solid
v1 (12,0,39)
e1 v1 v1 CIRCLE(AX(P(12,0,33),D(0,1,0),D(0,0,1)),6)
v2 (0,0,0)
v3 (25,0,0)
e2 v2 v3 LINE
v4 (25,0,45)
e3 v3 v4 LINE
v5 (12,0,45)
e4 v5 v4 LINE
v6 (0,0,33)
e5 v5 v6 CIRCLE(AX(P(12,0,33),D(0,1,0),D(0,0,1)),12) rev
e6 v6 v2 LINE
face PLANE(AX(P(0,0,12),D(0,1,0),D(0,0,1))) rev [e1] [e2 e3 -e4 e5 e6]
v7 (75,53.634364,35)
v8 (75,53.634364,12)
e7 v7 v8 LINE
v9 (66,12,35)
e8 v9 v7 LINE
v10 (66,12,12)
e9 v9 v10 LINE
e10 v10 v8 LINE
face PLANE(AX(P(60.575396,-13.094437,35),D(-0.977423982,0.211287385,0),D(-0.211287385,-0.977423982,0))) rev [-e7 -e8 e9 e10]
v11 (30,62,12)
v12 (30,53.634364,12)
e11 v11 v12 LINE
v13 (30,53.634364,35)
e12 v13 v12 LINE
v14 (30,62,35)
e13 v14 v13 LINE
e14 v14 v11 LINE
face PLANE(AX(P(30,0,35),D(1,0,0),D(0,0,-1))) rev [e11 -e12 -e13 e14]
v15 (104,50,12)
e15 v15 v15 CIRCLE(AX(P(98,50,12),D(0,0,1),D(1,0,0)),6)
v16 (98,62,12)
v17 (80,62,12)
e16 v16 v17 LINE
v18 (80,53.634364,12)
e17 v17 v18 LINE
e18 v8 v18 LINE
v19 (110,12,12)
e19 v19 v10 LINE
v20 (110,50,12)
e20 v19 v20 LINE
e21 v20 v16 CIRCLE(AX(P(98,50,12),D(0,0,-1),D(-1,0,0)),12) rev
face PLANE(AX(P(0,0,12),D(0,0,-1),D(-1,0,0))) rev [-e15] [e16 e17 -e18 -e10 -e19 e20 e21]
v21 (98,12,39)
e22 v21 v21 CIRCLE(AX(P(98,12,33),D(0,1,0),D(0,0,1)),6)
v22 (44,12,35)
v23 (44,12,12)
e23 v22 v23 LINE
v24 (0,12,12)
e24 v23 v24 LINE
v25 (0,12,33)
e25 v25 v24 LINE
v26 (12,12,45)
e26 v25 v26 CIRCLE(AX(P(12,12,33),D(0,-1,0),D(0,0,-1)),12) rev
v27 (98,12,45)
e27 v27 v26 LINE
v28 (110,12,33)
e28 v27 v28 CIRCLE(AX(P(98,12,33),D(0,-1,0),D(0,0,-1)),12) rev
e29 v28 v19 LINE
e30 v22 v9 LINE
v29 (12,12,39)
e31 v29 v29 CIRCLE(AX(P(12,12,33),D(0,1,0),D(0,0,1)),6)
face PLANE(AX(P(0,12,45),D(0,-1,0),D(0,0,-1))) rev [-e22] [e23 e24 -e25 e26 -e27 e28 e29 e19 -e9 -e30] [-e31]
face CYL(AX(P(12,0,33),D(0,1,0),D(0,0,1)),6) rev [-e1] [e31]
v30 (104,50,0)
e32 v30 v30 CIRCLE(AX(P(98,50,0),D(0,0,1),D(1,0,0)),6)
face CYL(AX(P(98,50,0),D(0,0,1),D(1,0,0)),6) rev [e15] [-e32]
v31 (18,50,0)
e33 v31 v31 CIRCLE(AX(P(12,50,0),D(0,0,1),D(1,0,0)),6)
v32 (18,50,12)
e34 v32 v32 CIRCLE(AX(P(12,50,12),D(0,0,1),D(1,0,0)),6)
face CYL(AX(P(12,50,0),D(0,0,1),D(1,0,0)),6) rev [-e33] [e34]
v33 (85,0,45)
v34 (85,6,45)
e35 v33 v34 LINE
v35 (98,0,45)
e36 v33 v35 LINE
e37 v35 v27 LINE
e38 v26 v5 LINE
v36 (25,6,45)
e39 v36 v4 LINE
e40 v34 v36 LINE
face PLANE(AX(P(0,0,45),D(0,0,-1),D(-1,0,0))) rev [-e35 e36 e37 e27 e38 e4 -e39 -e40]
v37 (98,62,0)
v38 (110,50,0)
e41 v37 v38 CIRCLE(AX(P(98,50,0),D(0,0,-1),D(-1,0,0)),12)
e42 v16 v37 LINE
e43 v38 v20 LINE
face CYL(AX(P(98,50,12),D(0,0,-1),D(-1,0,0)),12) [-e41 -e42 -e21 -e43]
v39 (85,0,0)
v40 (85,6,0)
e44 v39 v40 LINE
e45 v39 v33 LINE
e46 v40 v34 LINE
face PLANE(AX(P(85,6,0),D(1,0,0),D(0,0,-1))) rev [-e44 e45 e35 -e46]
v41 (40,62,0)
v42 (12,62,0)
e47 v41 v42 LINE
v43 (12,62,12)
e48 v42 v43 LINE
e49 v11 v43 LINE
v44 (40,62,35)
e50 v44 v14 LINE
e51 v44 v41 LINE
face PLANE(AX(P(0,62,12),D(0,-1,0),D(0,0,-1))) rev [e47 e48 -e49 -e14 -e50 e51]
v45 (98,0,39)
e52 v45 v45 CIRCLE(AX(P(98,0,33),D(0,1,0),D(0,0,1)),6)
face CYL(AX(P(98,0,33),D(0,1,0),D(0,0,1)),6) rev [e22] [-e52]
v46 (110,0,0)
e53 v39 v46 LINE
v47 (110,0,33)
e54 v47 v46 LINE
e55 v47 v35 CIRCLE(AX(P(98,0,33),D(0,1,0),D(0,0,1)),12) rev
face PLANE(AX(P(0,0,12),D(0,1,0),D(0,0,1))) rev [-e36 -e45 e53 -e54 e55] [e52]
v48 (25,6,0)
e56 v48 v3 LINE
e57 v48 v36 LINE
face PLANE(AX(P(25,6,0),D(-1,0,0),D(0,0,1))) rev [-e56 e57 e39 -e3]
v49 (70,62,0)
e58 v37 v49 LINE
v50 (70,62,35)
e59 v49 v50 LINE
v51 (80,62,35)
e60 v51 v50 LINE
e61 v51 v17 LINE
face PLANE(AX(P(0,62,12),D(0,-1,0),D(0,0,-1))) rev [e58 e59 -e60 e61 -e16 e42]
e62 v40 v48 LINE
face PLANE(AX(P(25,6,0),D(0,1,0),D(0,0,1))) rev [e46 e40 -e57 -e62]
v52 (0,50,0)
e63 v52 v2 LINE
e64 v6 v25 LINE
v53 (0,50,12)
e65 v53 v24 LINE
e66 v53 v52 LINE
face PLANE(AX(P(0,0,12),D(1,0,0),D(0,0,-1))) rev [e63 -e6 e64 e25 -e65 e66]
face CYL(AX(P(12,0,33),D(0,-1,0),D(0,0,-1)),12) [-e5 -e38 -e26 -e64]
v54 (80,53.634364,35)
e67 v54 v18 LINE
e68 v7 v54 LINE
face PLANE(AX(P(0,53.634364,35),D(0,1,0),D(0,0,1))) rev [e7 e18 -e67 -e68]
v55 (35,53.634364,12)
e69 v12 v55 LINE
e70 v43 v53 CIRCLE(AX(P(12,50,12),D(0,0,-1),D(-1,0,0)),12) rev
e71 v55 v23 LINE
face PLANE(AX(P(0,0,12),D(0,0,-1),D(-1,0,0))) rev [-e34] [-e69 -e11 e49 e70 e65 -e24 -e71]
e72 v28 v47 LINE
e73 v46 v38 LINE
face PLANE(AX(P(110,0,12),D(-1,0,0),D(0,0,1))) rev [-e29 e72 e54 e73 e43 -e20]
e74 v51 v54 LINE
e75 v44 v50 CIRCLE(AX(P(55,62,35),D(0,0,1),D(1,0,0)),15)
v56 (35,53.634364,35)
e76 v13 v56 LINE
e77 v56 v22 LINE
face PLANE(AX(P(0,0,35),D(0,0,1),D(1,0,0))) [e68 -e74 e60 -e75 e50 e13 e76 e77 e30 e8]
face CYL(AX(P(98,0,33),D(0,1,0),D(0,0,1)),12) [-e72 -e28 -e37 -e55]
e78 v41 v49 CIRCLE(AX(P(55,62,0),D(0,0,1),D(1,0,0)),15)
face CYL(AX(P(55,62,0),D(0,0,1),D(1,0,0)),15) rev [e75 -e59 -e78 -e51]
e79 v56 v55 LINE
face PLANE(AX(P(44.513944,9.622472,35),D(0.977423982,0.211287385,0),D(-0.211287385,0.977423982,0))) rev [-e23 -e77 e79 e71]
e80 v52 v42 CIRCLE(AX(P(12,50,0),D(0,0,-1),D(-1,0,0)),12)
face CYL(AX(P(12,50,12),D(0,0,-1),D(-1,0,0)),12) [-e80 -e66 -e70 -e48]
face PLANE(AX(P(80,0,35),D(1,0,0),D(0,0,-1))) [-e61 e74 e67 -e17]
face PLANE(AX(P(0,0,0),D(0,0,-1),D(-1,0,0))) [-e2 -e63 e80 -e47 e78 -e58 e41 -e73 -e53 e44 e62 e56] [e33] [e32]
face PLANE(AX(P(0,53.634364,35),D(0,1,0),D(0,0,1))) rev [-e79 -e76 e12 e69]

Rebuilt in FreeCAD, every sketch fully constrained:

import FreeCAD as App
import Part
import Sketcher
from FreeCAD import Vector


def edges_at(feature, points):
    """Names of the edges that pass closest to the given points."""
    edges = feature.Shape.Edges
    near = lambda p: min(range(len(edges)), key=lambda i: edges[i].distToShape(Part.Vertex(*p))[0])
    return sorted({f"Edge{near(p) + 1}" for p in points})

doc = App.newDocument("Part")
body = doc.addObject("PartDesign::Body", "Body")

# Sketch on XY plane
sketch1 = body.newObject("Sketcher::SketchObject", "Sketch")
sketch1.AttachmentSupport = (doc.getObject("XY_Plane"), [""])
sketch1.MapMode = "FlatFace"
sketch1.addGeometry([
    Part.LineSegment(Vector(0, 62, 0), Vector(0, 0, 0)),
    Part.LineSegment(Vector(0, 0, 0), Vector(110, 0, 0)),
    Part.LineSegment(Vector(110, 0, 0), Vector(110, 62, 0)),
    Part.LineSegment(Vector(110, 62, 0), Vector(0, 62, 0)),
], False)
sketch1.addConstraint([
    Sketcher.Constraint("Coincident", 0, 2, 1, 1),
    Sketcher.Constraint("Coincident", 1, 2, 2, 1),
    Sketcher.Constraint("Coincident", 2, 2, 3, 1),
    Sketcher.Constraint("Coincident", 3, 2, 0, 1),
    Sketcher.Constraint("Vertical", 0),
    Sketcher.Constraint("Horizontal", 1),
    Sketcher.Constraint("Vertical", 2),
    Sketcher.Constraint("Horizontal", 3),
    Sketcher.Constraint("Coincident", 0, 2, -1, 1),
    Sketcher.Constraint("DistanceX", 1, 1, 1, 2, 110.0),
    Sketcher.Constraint("DistanceY", 0, 2, 0, 1, 62.0),
])
pad1 = body.newObject("PartDesign::Pad", "Pad")
pad1.Profile = sketch1
pad1.Length = 12

# Sketch on XY plane
sketch2 = body.newObject("Sketcher::SketchObject", "Sketch001")
sketch2.AttachmentSupport = (doc.getObject("XY_Plane"), [""])
sketch2.MapMode = "FlatFace"
sketch2.AttachmentOffset = App.Placement(Vector(0, 0, 12), App.Rotation())
sketch2.addGeometry([
    Part.LineSegment(Vector(0, 12, 0), Vector(0, 0, 0)),
    Part.LineSegment(Vector(0, 0, 0), Vector(110, 0, 0)),
    Part.LineSegment(Vector(110, 0, 0), Vector(110, 12, 0)),
    Part.LineSegment(Vector(110, 12, 0), Vector(0, 12, 0)),
], False)
sketch2.addConstraint([
    Sketcher.Constraint("Coincident", 0, 2, 1, 1),
    Sketcher.Constraint("Coincident", 1, 2, 2, 1),
    Sketcher.Constraint("Coincident", 2, 2, 3, 1),
    Sketcher.Constraint("Coincident", 3, 2, 0, 1),
    Sketcher.Constraint("Vertical", 0),
    Sketcher.Constraint("Horizontal", 1),
    Sketcher.Constraint("Vertical", 2),
    Sketcher.Constraint("Horizontal", 3),
    Sketcher.Constraint("Coincident", 0, 2, -1, 1),
    Sketcher.Constraint("DistanceX", 1, 1, 1, 2, 110.0),
    Sketcher.Constraint("DistanceY", 0, 2, 0, 1, 12.0),
])
pad2 = body.newObject("PartDesign::Pad", "Pad001")
pad2.Profile = sketch2
pad2.Length = 33

# Sketch on XY plane
sketch3 = body.newObject("Sketcher::SketchObject", "Sketch002")
sketch3.AttachmentSupport = (doc.getObject("XY_Plane"), [""])
sketch3.MapMode = "FlatFace"
sketch3.AttachmentOffset = App.Placement(Vector(0, 0, 12), App.Rotation())
sketch3.addGeometry([
    Part.LineSegment(Vector(35, 54, 0), Vector(44, 12, 0)),  # 0
    Part.LineSegment(Vector(44, 12, 0), Vector(66, 12, 0)),  # 1
    Part.LineSegment(Vector(66, 12, 0), Vector(75, 54, 0)),  # 2
    Part.LineSegment(Vector(75, 54, 0), Vector(80, 54, 0)),  # 3
    Part.LineSegment(Vector(80, 54, 0), Vector(80, 62, 0)),  # 4
    Part.LineSegment(Vector(80, 62, 0), Vector(30, 62, 0)),  # 5
    Part.LineSegment(Vector(30, 62, 0), Vector(30, 54, 0)),  # 6
    Part.LineSegment(Vector(30, 54, 0), Vector(35, 54, 0)),  # 7
], False)
sketch3.addConstraint([
    Sketcher.Constraint("Coincident", 0, 2, 1, 1),
    Sketcher.Constraint("Coincident", 1, 2, 2, 1),
    Sketcher.Constraint("Coincident", 2, 2, 3, 1),
    Sketcher.Constraint("Coincident", 3, 2, 4, 1),
    Sketcher.Constraint("Coincident", 4, 2, 5, 1),
    Sketcher.Constraint("Coincident", 5, 2, 6, 1),
    Sketcher.Constraint("Coincident", 6, 2, 7, 1),
    Sketcher.Constraint("Coincident", 7, 2, 0, 1),
    Sketcher.Constraint("Horizontal", 1),
    Sketcher.Constraint("Horizontal", 3),
    Sketcher.Constraint("Vertical", 4),
    Sketcher.Constraint("Horizontal", 5),
    Sketcher.Constraint("Vertical", 6),
    Sketcher.Constraint("Horizontal", 7),
    Sketcher.Constraint("Horizontal", 3, 2, 6, 2),
    Sketcher.Constraint("Equal", 3, 7),
    Sketcher.Constraint("Equal", 0, 2),
    Sketcher.Constraint("DistanceX", 1, 1, 1, 2, 22.0),
    Sketcher.Constraint("DistanceX", 3, 1, 3, 2, 5.0),
    Sketcher.Constraint("DistanceX", 5, 2, 5, 1, 50.0),
    Sketcher.Constraint("DistanceX", -1, 1, 0, 2, 44.0),
    Sketcher.Constraint("DistanceY", -1, 1, 0, 2, 12.0),
    Sketcher.Constraint("DistanceY", -1, 1, 4, 2, 62.0),
    Sketcher.Constraint("DistanceY", 4, 1, 4, 2, 8.365636),
])
pad3 = body.newObject("PartDesign::Pad", "Pad002")
pad3.Profile = sketch3
pad3.Length = 23

# Sketch on XY plane
sketch4 = body.newObject("Sketcher::SketchObject", "Sketch003")
sketch4.AttachmentSupport = (doc.getObject("XY_Plane"), [""])
sketch4.MapMode = "FlatFace"
sketch4.AttachmentOffset = App.Placement(Vector(0, 0, 12), App.Rotation())
sketch4.addGeometry(Part.Circle(Vector(12, 50, 0), Vector(0, 0, 1), 6), False)
sketch4.addConstraint([
    Sketcher.Constraint("Diameter", 0, 12.0),
    Sketcher.Constraint("DistanceX", -1, 1, 0, 3, 12.0),
    Sketcher.Constraint("DistanceY", -1, 1, 0, 3, 50.0),
])
pocket1 = body.newObject("PartDesign::Pocket", "Pocket")
pocket1.Profile = sketch4
pocket1.Type = "ThroughAll"

# Sketch on XY plane
sketch5 = body.newObject("Sketcher::SketchObject", "Sketch004")
sketch5.AttachmentSupport = (doc.getObject("XY_Plane"), [""])
sketch5.MapMode = "FlatFace"
sketch5.AttachmentOffset = App.Placement(Vector(0, 0, 12), App.Rotation())
sketch5.addGeometry(Part.Circle(Vector(98, 50, 0), Vector(0, 0, 1), 6), False)
sketch5.addConstraint([
    Sketcher.Constraint("Diameter", 0, 12.0),
    Sketcher.Constraint("DistanceX", -1, 1, 0, 3, 98.0),
    Sketcher.Constraint("DistanceY", -1, 1, 0, 3, 50.0),
])
pocket2 = body.newObject("PartDesign::Pocket", "Pocket001")
pocket2.Profile = sketch5
pocket2.Type = "ThroughAll"

# Sketch on XZ plane
sketch6 = body.newObject("Sketcher::SketchObject", "Sketch005")
sketch6.AttachmentSupport = (doc.getObject("XZ_Plane"), [""])
sketch6.MapMode = "FlatFace"
sketch6.AttachmentOffset = App.Placement(Vector(0, 0, -12), App.Rotation())
sketch6.addGeometry(Part.Circle(Vector(12, 33, 0), Vector(0, 0, 1), 6), False)
sketch6.addConstraint([
    Sketcher.Constraint("Diameter", 0, 12.0),
    Sketcher.Constraint("DistanceX", -1, 1, 0, 3, 12.0),
    Sketcher.Constraint("DistanceY", -1, 1, 0, 3, 33.0),
])
pocket3 = body.newObject("PartDesign::Pocket", "Pocket002")
pocket3.Profile = sketch6
pocket3.Type = "ThroughAll"
pocket3.Reversed = True

# Sketch on XZ plane
sketch7 = body.newObject("Sketcher::SketchObject", "Sketch006")
sketch7.AttachmentSupport = (doc.getObject("XZ_Plane"), [""])
sketch7.MapMode = "FlatFace"
sketch7.AttachmentOffset = App.Placement(Vector(0, 0, -12), App.Rotation())
sketch7.addGeometry(Part.Circle(Vector(98, 33, 0), Vector(0, 0, 1), 6), False)
sketch7.addConstraint([
    Sketcher.Constraint("Diameter", 0, 12.0),
    Sketcher.Constraint("DistanceX", -1, 1, 0, 3, 98.0),
    Sketcher.Constraint("DistanceY", -1, 1, 0, 3, 33.0),
])
pocket4 = body.newObject("PartDesign::Pocket", "Pocket003")
pocket4.Profile = sketch7
pocket4.Type = "ThroughAll"
pocket4.Reversed = True

# Sketch on XY plane
sketch8 = body.newObject("Sketcher::SketchObject", "Sketch007")
sketch8.AttachmentSupport = (doc.getObject("XY_Plane"), [""])
sketch8.MapMode = "FlatFace"
sketch8.AttachmentOffset = App.Placement(Vector(0, 0, 45), App.Rotation())
sketch8.addGeometry([
    Part.LineSegment(Vector(25, 6, 0), Vector(25, 0, 0)),
    Part.LineSegment(Vector(25, 0, 0), Vector(85, 0, 0)),
    Part.LineSegment(Vector(85, 0, 0), Vector(85, 6, 0)),
    Part.LineSegment(Vector(85, 6, 0), Vector(25, 6, 0)),
], False)
sketch8.addConstraint([
    Sketcher.Constraint("Coincident", 0, 2, 1, 1),
    Sketcher.Constraint("Coincident", 1, 2, 2, 1),
    Sketcher.Constraint("Coincident", 2, 2, 3, 1),
    Sketcher.Constraint("Coincident", 3, 2, 0, 1),
    Sketcher.Constraint("Vertical", 0),
    Sketcher.Constraint("Horizontal", 1),
    Sketcher.Constraint("Vertical", 2),
    Sketcher.Constraint("Horizontal", 3),
    Sketcher.Constraint("PointOnObject", 0, 2, -1),
    Sketcher.Constraint("DistanceX", 1, 1, 1, 2, 60.0),
    Sketcher.Constraint("DistanceY", 0, 2, 0, 1, 6.0),
    Sketcher.Constraint("DistanceX", -1, 1, 0, 2, 25.0),
])
pocket5 = body.newObject("PartDesign::Pocket", "Pocket004")
pocket5.Profile = sketch8
pocket5.Type = "ThroughAll"
doc.recompute()

fillet = body.newObject("PartDesign::Fillet", "Fillet")
fillet.Base = (pocket5, edges_at(pocket5, [
    (0, 6, 45),
    (110, 6, 45),
    (0, 62, 6),
    (110, 62, 6),
]))
fillet.Radius = 12

# Sketch on XY plane
sketch9 = body.newObject("Sketcher::SketchObject", "Sketch008")
sketch9.AttachmentSupport = (doc.getObject("XY_Plane"), [""])
sketch9.MapMode = "FlatFace"
sketch9.AttachmentOffset = App.Placement(Vector(0, 0, 35), App.Rotation())
sketch9.addGeometry(Part.Circle(Vector(55, 62, 0), Vector(0, 0, 1), 15), False)
sketch9.addConstraint([
    Sketcher.Constraint("Diameter", 0, 30.0),
    Sketcher.Constraint("DistanceX", -1, 1, 0, 3, 55.0),
    Sketcher.Constraint("DistanceY", -1, 1, 0, 3, 62.0),
])
pocket6 = body.newObject("PartDesign::Pocket", "Pocket005")
pocket6.Profile = sketch9
pocket6.Type = "ThroughAll"

doc.recompute()
